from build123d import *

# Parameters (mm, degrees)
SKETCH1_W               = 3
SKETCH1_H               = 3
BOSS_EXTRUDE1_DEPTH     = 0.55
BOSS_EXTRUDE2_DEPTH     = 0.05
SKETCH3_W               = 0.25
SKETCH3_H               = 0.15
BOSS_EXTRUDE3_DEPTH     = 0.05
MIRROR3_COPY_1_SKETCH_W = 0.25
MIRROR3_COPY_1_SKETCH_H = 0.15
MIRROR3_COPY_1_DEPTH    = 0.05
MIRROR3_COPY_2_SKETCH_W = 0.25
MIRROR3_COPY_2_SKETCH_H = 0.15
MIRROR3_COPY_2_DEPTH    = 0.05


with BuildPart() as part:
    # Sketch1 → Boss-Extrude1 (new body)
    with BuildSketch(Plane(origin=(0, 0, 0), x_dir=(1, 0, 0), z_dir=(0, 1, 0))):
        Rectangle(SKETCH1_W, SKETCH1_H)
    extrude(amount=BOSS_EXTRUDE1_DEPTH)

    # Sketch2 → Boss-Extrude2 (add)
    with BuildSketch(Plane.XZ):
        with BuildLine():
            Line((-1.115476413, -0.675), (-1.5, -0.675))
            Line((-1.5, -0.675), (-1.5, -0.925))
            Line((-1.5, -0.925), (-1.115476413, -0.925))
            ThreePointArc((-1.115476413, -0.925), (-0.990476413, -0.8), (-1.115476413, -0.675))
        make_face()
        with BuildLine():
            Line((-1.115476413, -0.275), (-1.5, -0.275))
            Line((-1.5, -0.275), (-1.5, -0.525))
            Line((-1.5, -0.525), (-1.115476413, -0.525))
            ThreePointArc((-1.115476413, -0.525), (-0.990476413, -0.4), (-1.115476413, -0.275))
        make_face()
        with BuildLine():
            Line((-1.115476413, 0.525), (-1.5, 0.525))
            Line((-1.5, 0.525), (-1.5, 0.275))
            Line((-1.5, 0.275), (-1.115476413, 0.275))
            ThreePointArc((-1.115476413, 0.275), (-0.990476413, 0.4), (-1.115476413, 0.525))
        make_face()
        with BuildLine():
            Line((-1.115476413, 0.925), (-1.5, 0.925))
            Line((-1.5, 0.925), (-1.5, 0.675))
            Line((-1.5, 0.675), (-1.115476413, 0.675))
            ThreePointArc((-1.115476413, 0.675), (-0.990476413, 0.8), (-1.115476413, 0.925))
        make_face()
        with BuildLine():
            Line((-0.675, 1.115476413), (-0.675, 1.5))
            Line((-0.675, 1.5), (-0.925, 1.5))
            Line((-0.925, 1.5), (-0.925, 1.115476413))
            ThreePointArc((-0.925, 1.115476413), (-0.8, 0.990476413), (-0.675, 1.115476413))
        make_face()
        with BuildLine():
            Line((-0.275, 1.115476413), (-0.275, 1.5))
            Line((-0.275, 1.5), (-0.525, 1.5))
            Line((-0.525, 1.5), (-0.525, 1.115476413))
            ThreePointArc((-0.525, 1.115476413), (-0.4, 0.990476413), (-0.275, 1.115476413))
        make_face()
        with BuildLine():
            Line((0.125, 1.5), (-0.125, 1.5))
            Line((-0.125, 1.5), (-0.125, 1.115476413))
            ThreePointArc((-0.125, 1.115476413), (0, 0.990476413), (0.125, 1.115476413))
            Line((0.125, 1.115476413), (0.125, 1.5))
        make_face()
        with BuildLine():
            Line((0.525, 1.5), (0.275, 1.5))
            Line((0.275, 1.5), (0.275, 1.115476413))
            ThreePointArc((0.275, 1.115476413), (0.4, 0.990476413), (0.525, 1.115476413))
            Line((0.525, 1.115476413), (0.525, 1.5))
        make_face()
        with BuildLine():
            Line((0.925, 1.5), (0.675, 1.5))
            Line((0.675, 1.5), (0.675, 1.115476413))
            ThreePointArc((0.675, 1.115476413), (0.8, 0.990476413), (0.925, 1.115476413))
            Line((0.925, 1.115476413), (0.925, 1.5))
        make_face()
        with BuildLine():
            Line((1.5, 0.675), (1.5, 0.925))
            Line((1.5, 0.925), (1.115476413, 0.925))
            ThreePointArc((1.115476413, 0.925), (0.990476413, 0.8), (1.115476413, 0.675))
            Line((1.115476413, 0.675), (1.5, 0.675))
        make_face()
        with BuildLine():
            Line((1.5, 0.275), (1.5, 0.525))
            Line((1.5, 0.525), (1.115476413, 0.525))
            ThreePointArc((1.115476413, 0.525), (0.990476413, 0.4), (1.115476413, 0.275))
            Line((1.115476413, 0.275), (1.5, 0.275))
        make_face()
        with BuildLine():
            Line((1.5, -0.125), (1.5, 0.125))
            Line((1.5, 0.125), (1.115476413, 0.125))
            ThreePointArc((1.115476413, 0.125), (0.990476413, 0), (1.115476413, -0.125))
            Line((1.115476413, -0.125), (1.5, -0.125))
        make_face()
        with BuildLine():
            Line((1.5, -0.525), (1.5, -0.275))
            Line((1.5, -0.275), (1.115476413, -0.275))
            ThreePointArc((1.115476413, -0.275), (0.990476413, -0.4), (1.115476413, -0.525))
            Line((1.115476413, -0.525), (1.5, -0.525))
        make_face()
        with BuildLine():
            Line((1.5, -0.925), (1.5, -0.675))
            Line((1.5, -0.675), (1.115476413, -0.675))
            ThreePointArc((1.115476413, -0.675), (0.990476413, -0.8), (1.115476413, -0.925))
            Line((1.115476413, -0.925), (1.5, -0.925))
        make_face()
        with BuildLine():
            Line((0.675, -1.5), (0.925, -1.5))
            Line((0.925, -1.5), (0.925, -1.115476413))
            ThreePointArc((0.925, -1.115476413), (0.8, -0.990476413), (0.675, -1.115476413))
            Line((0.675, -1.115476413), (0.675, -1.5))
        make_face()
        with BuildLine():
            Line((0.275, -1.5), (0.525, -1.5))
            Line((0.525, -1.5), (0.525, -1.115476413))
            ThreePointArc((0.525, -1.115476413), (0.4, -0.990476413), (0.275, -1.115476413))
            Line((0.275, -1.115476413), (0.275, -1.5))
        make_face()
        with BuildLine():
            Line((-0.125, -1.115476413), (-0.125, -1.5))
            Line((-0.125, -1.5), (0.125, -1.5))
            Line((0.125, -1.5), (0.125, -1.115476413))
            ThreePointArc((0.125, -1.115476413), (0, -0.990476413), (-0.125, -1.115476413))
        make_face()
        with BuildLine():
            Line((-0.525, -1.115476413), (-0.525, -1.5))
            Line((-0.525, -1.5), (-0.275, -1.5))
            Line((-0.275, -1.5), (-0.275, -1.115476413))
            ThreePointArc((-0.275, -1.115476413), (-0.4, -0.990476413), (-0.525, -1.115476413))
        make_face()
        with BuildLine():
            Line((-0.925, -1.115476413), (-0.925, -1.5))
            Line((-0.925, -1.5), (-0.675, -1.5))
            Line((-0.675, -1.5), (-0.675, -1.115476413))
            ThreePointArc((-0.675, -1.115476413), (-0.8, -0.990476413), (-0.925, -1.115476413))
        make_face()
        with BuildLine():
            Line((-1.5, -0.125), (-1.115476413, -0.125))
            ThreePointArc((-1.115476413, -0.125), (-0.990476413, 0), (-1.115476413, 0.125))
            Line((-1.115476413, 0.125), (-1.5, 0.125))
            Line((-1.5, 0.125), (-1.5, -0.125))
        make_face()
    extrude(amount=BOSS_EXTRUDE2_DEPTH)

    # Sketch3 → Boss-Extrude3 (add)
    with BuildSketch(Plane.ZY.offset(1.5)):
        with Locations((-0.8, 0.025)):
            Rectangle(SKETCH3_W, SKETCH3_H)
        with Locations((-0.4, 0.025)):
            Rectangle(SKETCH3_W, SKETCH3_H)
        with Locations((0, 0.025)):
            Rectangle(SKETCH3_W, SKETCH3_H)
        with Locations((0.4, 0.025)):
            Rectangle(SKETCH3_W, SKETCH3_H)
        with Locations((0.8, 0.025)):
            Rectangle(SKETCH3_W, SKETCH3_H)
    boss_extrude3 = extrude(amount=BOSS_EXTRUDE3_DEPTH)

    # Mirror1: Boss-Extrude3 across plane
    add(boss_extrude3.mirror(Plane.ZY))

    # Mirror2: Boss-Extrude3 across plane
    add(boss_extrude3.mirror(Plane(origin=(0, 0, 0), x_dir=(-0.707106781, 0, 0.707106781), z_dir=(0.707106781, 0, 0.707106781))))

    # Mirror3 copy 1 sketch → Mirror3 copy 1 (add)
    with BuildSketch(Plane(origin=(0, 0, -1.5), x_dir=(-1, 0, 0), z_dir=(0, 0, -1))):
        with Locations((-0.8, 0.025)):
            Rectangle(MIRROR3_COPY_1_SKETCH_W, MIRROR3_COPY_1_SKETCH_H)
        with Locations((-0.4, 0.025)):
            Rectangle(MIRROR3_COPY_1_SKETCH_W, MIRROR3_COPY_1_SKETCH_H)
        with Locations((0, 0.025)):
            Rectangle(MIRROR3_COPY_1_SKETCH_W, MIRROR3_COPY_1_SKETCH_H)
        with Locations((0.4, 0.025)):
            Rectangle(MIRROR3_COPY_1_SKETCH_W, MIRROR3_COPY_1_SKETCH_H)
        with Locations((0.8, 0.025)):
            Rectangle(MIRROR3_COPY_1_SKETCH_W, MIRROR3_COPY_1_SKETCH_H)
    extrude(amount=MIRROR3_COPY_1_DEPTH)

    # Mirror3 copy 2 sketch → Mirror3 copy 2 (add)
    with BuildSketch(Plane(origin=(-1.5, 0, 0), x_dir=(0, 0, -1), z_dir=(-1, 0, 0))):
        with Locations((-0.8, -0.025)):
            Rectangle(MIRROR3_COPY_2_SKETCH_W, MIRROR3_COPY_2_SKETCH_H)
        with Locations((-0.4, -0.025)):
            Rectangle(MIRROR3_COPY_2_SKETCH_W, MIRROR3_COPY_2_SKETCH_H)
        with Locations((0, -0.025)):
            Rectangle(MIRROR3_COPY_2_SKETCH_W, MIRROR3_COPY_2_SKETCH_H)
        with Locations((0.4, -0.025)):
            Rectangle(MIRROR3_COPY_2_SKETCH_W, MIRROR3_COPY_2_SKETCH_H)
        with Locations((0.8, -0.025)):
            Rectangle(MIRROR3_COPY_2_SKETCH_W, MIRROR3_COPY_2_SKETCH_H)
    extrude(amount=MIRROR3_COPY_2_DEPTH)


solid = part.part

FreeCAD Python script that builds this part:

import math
import FreeCAD as App
import Part
import Sketcher

V = App.Vector
Q = App.Units.Quantity


def add_polygon(sketch, points):
    """Adds a closed chain of lines whose ends are joined by coincident constraints."""
    first, n = sketch.GeometryCount, len(points)
    for a, b in zip(points, points[1:] + points[:1]):
        sketch.addGeometry(Part.LineSegment(App.Vector(*a, 0), App.Vector(*b, 0)), False)
    for i in range(n):
        sketch.addConstraint(Sketcher.Constraint("Coincident", first + i, 2, first + (i + 1) % n, 1))

doc = App.newDocument("Part")
body = doc.addObject("PartDesign::Body", "Body")

# Sketch on XZ plane
sketch1 = body.newObject("Sketcher::SketchObject", "Sketch")
sketch1.AttachmentSupport = (doc.getObject("XZ_Plane"), [""])
sketch1.MapMode = "FlatFace"
add_polygon(sketch1, [(-1.5, -1.5), (-1.5, 1.5), (1.5, 1.5), (1.5, -1.5)])  # lines 0-3
sketch1.addConstraint([
    Sketcher.Constraint("Vertical", 0),
    Sketcher.Constraint("Horizontal", 1),
    Sketcher.Constraint("Vertical", 2),
    Sketcher.Constraint("Horizontal", 3),
    Sketcher.Constraint("Symmetric", 0, 2, 2, 2, -1, 1),
    Sketcher.Constraint("Equal", 3, 0),
    Sketcher.Constraint("DistanceX", 1, 1, 1, 2, Q("3 mm")),
])
pad1 = body.newObject("PartDesign::Pad", "Pad")
pad1.Profile = sketch1
pad1.Length = 0.55
pad1.Reversed = True

# Sketch on XZ plane
sketch2 = body.newObject("Sketcher::SketchObject", "Sketch001")
sketch2.AttachmentSupport = (doc.getObject("XZ_Plane"), [""])
sketch2.MapMode = "FlatFace"
sketch2.addGeometry([
    Part.LineSegment(V(-1.12, -0.68, 0), V(-1.5, -0.68, 0)),  # 0
    Part.LineSegment(V(-1.5, -0.68, 0), V(-1.5, -0.93, 0)),  # 1
    Part.LineSegment(V(-1.5, -0.93, 0), V(-1.12, -0.93, 0)),  # 2
    Part.ArcOfCircle(Part.Circle(V(-1.12, -0.8, 0), V(0, 0, 1), 0.12), math.radians(-90), math.radians(90)),  # 3
    Part.LineSegment(V(-1.12, -0.28, 0), V(-1.5, -0.28, 0)),  # 4
    Part.LineSegment(V(-1.5, -0.28, 0), V(-1.5, -0.53, 0)),  # 5
    Part.LineSegment(V(-1.5, -0.53, 0), V(-1.12, -0.53, 0)),  # 6
    Part.ArcOfCircle(Part.Circle(V(-1.12, -0.4, 0), V(0, 0, 1), 0.12), math.radians(-90), math.radians(90)),  # 7
    Part.LineSegment(V(-1.12, 0.53, 0), V(-1.5, 0.53, 0)),  # 8
    Part.LineSegment(V(-1.5, 0.53, 0), V(-1.5, 0.28, 0)),  # 9
    Part.LineSegment(V(-1.5, 0.28, 0), V(-1.12, 0.28, 0)),  # 10
    Part.ArcOfCircle(Part.Circle(V(-1.12, 0.4, 0), V(0, 0, 1), 0.12), math.radians(-90), math.radians(90)),  # 11
    Part.LineSegment(V(-1.12, 0.93, 0), V(-1.5, 0.93, 0)),  # 12
    Part.LineSegment(V(-1.5, 0.93, 0), V(-1.5, 0.68, 0)),  # 13
    Part.LineSegment(V(-1.5, 0.68, 0), V(-1.12, 0.68, 0)),  # 14
    Part.ArcOfCircle(Part.Circle(V(-1.12, 0.8, 0), V(0, 0, 1), 0.12), math.radians(-90), math.radians(90)),  # 15
    Part.LineSegment(V(-0.68, 1.12, 0), V(-0.68, 1.5, 0)),  # 16
    Part.LineSegment(V(-0.68, 1.5, 0), V(-0.93, 1.5, 0)),  # 17
    Part.LineSegment(V(-0.93, 1.5, 0), V(-0.93, 1.12, 0)),  # 18
    Part.ArcOfCircle(Part.Circle(V(-0.8, 1.12, 0), V(0, 0, 1), 0.12), math.radians(180), math.radians(360)),  # 19
    Part.LineSegment(V(-0.28, 1.12, 0), V(-0.28, 1.5, 0)),  # 20
    Part.LineSegment(V(-0.28, 1.5, 0), V(-0.53, 1.5, 0)),  # 21
    Part.LineSegment(V(-0.53, 1.5, 0), V(-0.53, 1.12, 0)),  # 22
    Part.ArcOfCircle(Part.Circle(V(-0.4, 1.12, 0), V(0, 0, 1), 0.12), math.radians(180), math.radians(360)),  # 23
    Part.LineSegment(V(0.12, 1.5, 0), V(-0.12, 1.5, 0)),  # 24
    Part.LineSegment(V(-0.12, 1.5, 0), V(-0.12, 1.12, 0)),  # 25
    Part.ArcOfCircle(Part.Circle(V(0, 1.12, 0), V(0, 0, 1), 0.12), math.radians(180), math.radians(360)),  # 26
    Part.LineSegment(V(0.12, 1.12, 0), V(0.12, 1.5, 0)),  # 27
    Part.LineSegment(V(0.53, 1.5, 0), V(0.28, 1.5, 0)),  # 28
    Part.LineSegment(V(0.28, 1.5, 0), V(0.28, 1.12, 0)),  # 29
    Part.ArcOfCircle(Part.Circle(V(0.4, 1.12, 0), V(0, 0, 1), 0.12), math.radians(180), math.radians(360)),  # 30
    Part.LineSegment(V(0.53, 1.12, 0), V(0.53, 1.5, 0)),  # 31
    Part.LineSegment(V(0.93, 1.5, 0), V(0.68, 1.5, 0)),  # 32
    Part.LineSegment(V(0.68, 1.5, 0), V(0.68, 1.12, 0)),  # 33
    Part.ArcOfCircle(Part.Circle(V(0.8, 1.12, 0), V(0, 0, 1), 0.12), math.radians(180), math.radians(360)),  # 34
    Part.LineSegment(V(0.93, 1.12, 0), V(0.93, 1.5, 0)),  # 35
    Part.LineSegment(V(1.5, 0.68, 0), V(1.5, 0.93, 0)),  # 36
    Part.LineSegment(V(1.5, 0.93, 0), V(1.12, 0.93, 0)),  # 37
    Part.ArcOfCircle(Part.Circle(V(1.12, 0.8, 0), V(0, 0, 1), 0.12), math.radians(90), math.radians(270)),  # 38
    Part.LineSegment(V(1.12, 0.68, 0), V(1.5, 0.68, 0)),  # 39
    Part.LineSegment(V(1.5, 0.28, 0), V(1.5, 0.53, 0)),  # 40
    Part.LineSegment(V(1.5, 0.53, 0), V(1.12, 0.53, 0)),  # 41
    Part.ArcOfCircle(Part.Circle(V(1.12, 0.4, 0), V(0, 0, 1), 0.12), math.radians(90), math.radians(270)),  # 42
    Part.LineSegment(V(1.12, 0.28, 0), V(1.5, 0.28, 0)),  # 43
    Part.LineSegment(V(1.5, -0.12, 0), V(1.5, 0.12, 0)),  # 44
    Part.LineSegment(V(1.5, 0.12, 0), V(1.12, 0.12, 0)),  # 45
    Part.ArcOfCircle(Part.Circle(V(1.12, 0, 0), V(0, 0, 1), 0.12), math.radians(90), math.radians(270)),  # 46
    Part.LineSegment(V(1.12, -0.12, 0), V(1.5, -0.12, 0)),  # 47
    Part.LineSegment(V(1.5, -0.53, 0), V(1.5, -0.28, 0)),  # 48
    Part.LineSegment(V(1.5, -0.28, 0), V(1.12, -0.28, 0)),  # 49
    Part.ArcOfCircle(Part.Circle(V(1.12, -0.4, 0), V(0, 0, 1), 0.12), math.radians(90), math.radians(270)),  # 50
    Part.LineSegment(V(1.12, -0.53, 0), V(1.5, -0.53, 0)),  # 51
    Part.LineSegment(V(1.5, -0.93, 0), V(1.5, -0.68, 0)),  # 52
    Part.LineSegment(V(1.5, -0.68, 0), V(1.12, -0.68, 0)),  # 53
    Part.ArcOfCircle(Part.Circle(V(1.12, -0.8, 0), V(0, 0, 1), 0.12), math.radians(90), math.radians(270)),  # 54
    Part.LineSegment(V(1.12, -0.93, 0), V(1.5, -0.93, 0)),  # 55
    Part.LineSegment(V(0.68, -1.5, 0), V(0.93, -1.5, 0)),  # 56
    Part.LineSegment(V(0.93, -1.5, 0), V(0.93, -1.12, 0)),  # 57
    Part.ArcOfCircle(Part.Circle(V(0.8, -1.12, 0), V(0, 0, 1), 0.12), math.radians(0), math.radians(180)),  # 58
    Part.LineSegment(V(0.68, -1.12, 0), V(0.68, -1.5, 0)),  # 59
    Part.LineSegment(V(0.28, -1.5, 0), V(0.53, -1.5, 0)),  # 60
    Part.LineSegment(V(0.53, -1.5, 0), V(0.53, -1.12, 0)),  # 61
    Part.ArcOfCircle(Part.Circle(V(0.4, -1.12, 0), V(0, 0, 1), 0.12), math.radians(0), math.radians(180)),  # 62
    Part.LineSegment(V(0.28, -1.12, 0), V(0.28, -1.5, 0)),  # 63
    Part.LineSegment(V(-0.12, -1.12, 0), V(-0.12, -1.5, 0)),  # 64
    Part.LineSegment(V(-0.12, -1.5, 0), V(0.12, -1.5, 0)),  # 65
    Part.LineSegment(V(0.12, -1.5, 0), V(0.12, -1.12, 0)),  # 66
    Part.ArcOfCircle(Part.Circle(V(0, -1.12, 0), V(0, 0, 1), 0.12), math.radians(0), math.radians(180)),  # 67
    Part.LineSegment(V(-0.53, -1.12, 0), V(-0.53, -1.5, 0)),  # 68
    Part.LineSegment(V(-0.53, -1.5, 0), V(-0.28, -1.5, 0)),  # 69
    Part.LineSegment(V(-0.28, -1.5, 0), V(-0.28, -1.12, 0)),  # 70
    Part.ArcOfCircle(Part.Circle(V(-0.4, -1.12, 0), V(0, 0, 1), 0.12), math.radians(0), math.radians(180)),  # 71
    Part.LineSegment(V(-0.93, -1.12, 0), V(-0.93, -1.5, 0)),  # 72
    Part.LineSegment(V(-0.93, -1.5, 0), V(-0.68, -1.5, 0)),  # 73
    Part.LineSegment(V(-0.68, -1.5, 0), V(-0.68, -1.12, 0)),  # 74
    Part.ArcOfCircle(Part.Circle(V(-0.8, -1.12, 0), V(0, 0, 1), 0.12), math.radians(0), math.radians(180)),  # 75
    Part.LineSegment(V(-1.5, -0.12, 0), V(-1.12, -0.12, 0)),  # 76
    Part.ArcOfCircle(Part.Circle(V(-1.12, 0, 0), V(0, 0, 1), 0.12), math.radians(-90), math.radians(90)),  # 77
    Part.LineSegment(V(-1.12, 0.12, 0), V(-1.5, 0.12, 0)),  # 78
    Part.LineSegment(V(-1.5, 0.12, 0), V(-1.5, -0.12, 0)),  # 79
], False)
sketch2.addConstraint([
    Sketcher.Constraint("Coincident", 0, 2, 1, 1),
    Sketcher.Constraint("Coincident", 1, 2, 2, 1),
    Sketcher.Constraint("Tangent", 2, 2, 3, 1),
    Sketcher.Constraint("Tangent", 3, 2, 0, 1),
    Sketcher.Constraint("Coincident", 4, 2, 5, 1),
    Sketcher.Constraint("Coincident", 5, 2, 6, 1),
    Sketcher.Constraint("Tangent", 6, 2, 7, 1),
    Sketcher.Constraint("Tangent", 7, 2, 4, 1),
    Sketcher.Constraint("Coincident", 8, 2, 9, 1),
    Sketcher.Constraint("Coincident", 9, 2, 10, 1),
    Sketcher.Constraint("Tangent", 10, 2, 11, 1),
    Sketcher.Constraint("Tangent", 11, 2, 8, 1),
    Sketcher.Constraint("Coincident", 12, 2, 13, 1),
    Sketcher.Constraint("Coincident", 13, 2, 14, 1),
    Sketcher.Constraint("Tangent", 14, 2, 15, 1),
    Sketcher.Constraint("Tangent", 15, 2, 12, 1),
    Sketcher.Constraint("Coincident", 16, 2, 17, 1),
    Sketcher.Constraint("Coincident", 17, 2, 18, 1),
    Sketcher.Constraint("Tangent", 18, 2, 19, 1),
    Sketcher.Constraint("Tangent", 19, 2, 16, 1),
    Sketcher.Constraint("Coincident", 20, 2, 21, 1),
    Sketcher.Constraint("Coincident", 21, 2, 22, 1),
    Sketcher.Constraint("Tangent", 22, 2, 23, 1),
    Sketcher.Constraint("Tangent", 23, 2, 20, 1),
    Sketcher.Constraint("Coincident", 24, 2, 25, 1),
    Sketcher.Constraint("Tangent", 25, 2, 26, 1),
    Sketcher.Constraint("Tangent", 26, 2, 27, 1),
    Sketcher.Constraint("Coincident", 27, 2, 24, 1),
    Sketcher.Constraint("Coincident", 28, 2, 29, 1),
    Sketcher.Constraint("Tangent", 29, 2, 30, 1),
    Sketcher.Constraint("Tangent", 30, 2, 31, 1),
    Sketcher.Constraint("Coincident", 31, 2, 28, 1),
    Sketcher.Constraint("Coincident", 32, 2, 33, 1),
    Sketcher.Constraint("Tangent", 33, 2, 34, 1),
    Sketcher.Constraint("Tangent", 34, 2, 35, 1),
    Sketcher.Constraint("Coincident", 35, 2, 32, 1),
    Sketcher.Constraint("Coincident", 36, 2, 37, 1),
    Sketcher.Constraint("Tangent", 37, 2, 38, 1),
    Sketcher.Constraint("Tangent", 38, 2, 39, 1),
    Sketcher.Constraint("Coincident", 39, 2, 36, 1),
    Sketcher.Constraint("Coincident", 40, 2, 41, 1),
    Sketcher.Constraint("Tangent", 41, 2, 42, 1),
    Sketcher.Constraint("Tangent", 42, 2, 43, 1),
    Sketcher.Constraint("Coincident", 43, 2, 40, 1),
    Sketcher.Constraint("Coincident", 44, 2, 45, 1),
    Sketcher.Constraint("Tangent", 45, 2, 46, 1),
    Sketcher.Constraint("Tangent", 46, 2, 47, 1),
    Sketcher.Constraint("Coincident", 47, 2, 44, 1),
    Sketcher.Constraint("Coincident", 48, 2, 49, 1),
    Sketcher.Constraint("Tangent", 49, 2, 50, 1),
    Sketcher.Constraint("Tangent", 50, 2, 51, 1),
    Sketcher.Constraint("Coincident", 51, 2, 48, 1),
    Sketcher.Constraint("Coincident", 52, 2, 53, 1),
    Sketcher.Constraint("Tangent", 53, 2, 54, 1),
    Sketcher.Constraint("Tangent", 54, 2, 55, 1),
    Sketcher.Constraint("Coincident", 55, 2, 52, 1),
    Sketcher.Constraint("Coincident", 56, 2, 57, 1),
    Sketcher.Constraint("Tangent", 57, 2, 58, 1),
    Sketcher.Constraint("Tangent", 58, 2, 59, 1),
    Sketcher.Constraint("Coincident", 59, 2, 56, 1),
    Sketcher.Constraint("Coincident", 60, 2, 61, 1),
    Sketcher.Constraint("Tangent", 61, 2, 62, 1),
    Sketcher.Constraint("Tangent", 62, 2, 63, 1),
    Sketcher.Constraint("Coincident", 63, 2, 60, 1),
    Sketcher.Constraint("Coincident", 64, 2, 65, 1),
    Sketcher.Constraint("Coincident", 65, 2, 66, 1),
    Sketcher.Constraint("Tangent", 66, 2, 67, 1),
    Sketcher.Constraint("Tangent", 67, 2, 64, 1),
    Sketcher.Constraint("Coincident", 68, 2, 69, 1),
    Sketcher.Constraint("Coincident", 69, 2, 70, 1),
    Sketcher.Constraint("Tangent", 70, 2, 71, 1),
    Sketcher.Constraint("Tangent", 71, 2, 68, 1),
    Sketcher.Constraint("Coincident", 72, 2, 73, 1),
    Sketcher.Constraint("Coincident", 73, 2, 74, 1),
    Sketcher.Constraint("Tangent", 74, 2, 75, 1),
    Sketcher.Constraint("Tangent", 75, 2, 72, 1),
    Sketcher.Constraint("Tangent", 76, 2, 77, 1),
    Sketcher.Constraint("Tangent", 77, 2, 78, 1),
    Sketcher.Constraint("Coincident", 78, 2, 79, 1),
    Sketcher.Constraint("Coincident", 79, 2, 76, 1),
    Sketcher.Constraint("Horizontal", 0),
    Sketcher.Constraint("Vertical", 1),
    Sketcher.Constraint("Horizontal", 2),
    Sketcher.Constraint("Horizontal", 4),
    Sketcher.Constraint("Vertical", 5),
    Sketcher.Constraint("Horizontal", 6),
    Sketcher.Constraint("Horizontal", 8),
    Sketcher.Constraint("Vertical", 9),
    Sketcher.Constraint("Horizontal", 10),
    Sketcher.Constraint("Horizontal", 12),
    Sketcher.Constraint("Vertical", 13),
    Sketcher.Constraint("Horizontal", 14),
    Sketcher.Constraint("Vertical", 16),
    Sketcher.Constraint("Horizontal", 17),
    Sketcher.Constraint("Vertical", 18),
    Sketcher.Constraint("Vertical", 20),
    Sketcher.Constraint("Horizontal", 21),
    Sketcher.Constraint("Vertical", 22),
    Sketcher.Constraint("Horizontal", 24),
    Sketcher.Constraint("Vertical", 25),
    Sketcher.Constraint("Vertical", 27),
    Sketcher.Constraint("Horizontal", 28),
    Sketcher.Constraint("Vertical", 29),
    Sketcher.Constraint("Vertical", 31),
    Sketcher.Constraint("Horizontal", 32),
    Sketcher.Constraint("Vertical", 33),
    Sketcher.Constraint("Vertical", 35),
    Sketcher.Constraint("Vertical", 36),
    Sketcher.Constraint("Horizontal", 37),
    Sketcher.Constraint("Horizontal", 39),
    Sketcher.Constraint("Vertical", 40),
    Sketcher.Constraint("Horizontal", 41),
    Sketcher.Constraint("Horizontal", 43),
    Sketcher.Constraint("Vertical", 44),
    Sketcher.Constraint("Horizontal", 45),
    Sketcher.Constraint("Horizontal", 47),
    Sketcher.Constraint("Vertical", 48),
    Sketcher.Constraint("Horizontal", 49),
    Sketcher.Constraint("Horizontal", 51),
    Sketcher.Constraint("Vertical", 52),
    Sketcher.Constraint("Horizontal", 53),
    Sketcher.Constraint("Horizontal", 55),
    Sketcher.Constraint("Horizontal", 56),
    Sketcher.Constraint("Vertical", 57),
    Sketcher.Constraint("Vertical", 59),
    Sketcher.Constraint("Horizontal", 60),
    Sketcher.Constraint("Vertical", 61),
    Sketcher.Constraint("Vertical", 63),
    Sketcher.Constraint("Vertical", 64),
    Sketcher.Constraint("Horizontal", 65),
    Sketcher.Constraint("Vertical", 66),
    Sketcher.Constraint("Vertical", 68),
    Sketcher.Constraint("Horizontal", 69),
    Sketcher.Constraint("Vertical", 70),
    Sketcher.Constraint("Vertical", 72),
    Sketcher.Constraint("Horizontal", 73),
    Sketcher.Constraint("Vertical", 74),
    Sketcher.Constraint("Horizontal", 76),
    Sketcher.Constraint("Horizontal", 78),
    Sketcher.Constraint("Vertical", 79),
    Sketcher.Constraint("Equal", 3, 7),
    Sketcher.Constraint("Equal", 7, 11),
    Sketcher.Constraint("Equal", 11, 15),
    Sketcher.Constraint("Equal", 15, 19),
    Sketcher.Constraint("Equal", 19, 23),
    Sketcher.Constraint("Equal", 23, 26),
    Sketcher.Constraint("Equal", 26, 30),
    Sketcher.Constraint("Equal", 30, 34),
    Sketcher.Constraint("Equal", 34, 38),
    Sketcher.Constraint("Equal", 38, 42),
    Sketcher.Constraint("Equal", 42, 46),
    Sketcher.Constraint("Equal", 46, 50),
    Sketcher.Constraint("Equal", 50, 54),
    Sketcher.Constraint("Equal", 54, 58),
    Sketcher.Constraint("Equal", 58, 62),
    Sketcher.Constraint("Equal", 62, 67),
    Sketcher.Constraint("Equal", 67, 71),
    Sketcher.Constraint("Equal", 71, 75),
    Sketcher.Constraint("Equal", 75, 77),
    Sketcher.Constraint("Symmetric", 3, 3, 38, 3, -1, 1),
    Sketcher.Constraint("Symmetric", 7, 3, 42, 3, -1, 1),
    Sketcher.Constraint("Symmetric", 11, 3, 50, 3, -1, 1),
    Sketcher.Constraint("Symmetric", 15, 3, 54, 3, -1, 1),
    Sketcher.Constraint("Symmetric", 19, 3, 58, 3, -1, 1),
    Sketcher.Constraint("Symmetric", 23, 3, 62, 3, -1, 1),
    Sketcher.Constraint("Symmetric", 26, 3, 67, 3, -1, 1),
    Sketcher.Constraint("Symmetric", 30, 3, 71, 3, -1, 1),
    Sketcher.Constraint("Symmetric", 34, 3, 75, 3, -1, 1),
    Sketcher.Constraint("Symmetric", 46, 3, 77, 3, -1, 1),
    Sketcher.Constraint("Symmetric", 23, 3, 30, 3, -2),
    Sketcher.Constraint("Symmetric", 19, 3, 34, 3, -2),
    Sketcher.Constraint("Symmetric", 15, 3, 38, 3, -2),
    Sketcher.Constraint("Symmetric", 11, 3, 42, 3, -2),
    Sketcher.Constraint("Symmetric", 44, 2, 78, 2, -2),
    Sketcher.Constraint("Symmetric", 24, 2, 64, 2, -1),
    Sketcher.Constraint("Horizontal", 19, 3, 23, 3),
    Sketcher.Constraint("Horizontal", 23, 3, 26, 3),
    Sketcher.Constraint("Horizontal", 17, 2, 20, 2),
    Sketcher.Constraint("Horizontal", 21, 2, 24, 2),
    Sketcher.Constraint("Horizontal", 27, 2, 28, 2),
    Sketcher.Constraint("Horizontal", 31, 2, 32, 2),
    Sketcher.Constraint("Horizontal", 59, 2, 60, 2),
    Sketcher.Constraint("Horizontal", 63, 2, 64, 2),
    Sketcher.Constraint("Horizontal", 65, 2, 68, 2),
    Sketcher.Constraint("Horizontal", 69, 2, 72, 2),
    Sketcher.Constraint("Vertical", 3, 3, 7, 3),
    Sketcher.Constraint("Vertical", 42, 3, 46, 3),
    Sketcher.Constraint("Vertical", 1, 2, 4, 2),
    Sketcher.Constraint("Vertical", 5, 2, 8, 2),
    Sketcher.Constraint("Vertical", 9, 2, 12, 2),
    Sketcher.Constraint("Vertical", 39, 2, 40, 2),
    Sketcher.Constraint("Vertical", 43, 2, 44, 2),
    Sketcher.Constraint("Vertical", 47, 2, 48, 2),
    Sketcher.Constraint("Vertical", 51, 2, 52, 2),
    Sketcher.Constraint("Vertical", 13, 2, 78, 2),
    Sketcher.Constraint("Equal", 78, 16),
    Sketcher.Constraint("Radius", 3, Q("0.125 mm")),
    Sketcher.Constraint("DistanceY", 3, 3, -1, 1, Q("0.8 mm")),
    Sketcher.Constraint("DistanceY", 7, 3, -1, 1, Q("0.4 mm")),
    Sketcher.Constraint("DistanceX", 19, 3, -1, 1, Q("0.8 mm")),
    Sketcher.Constraint("DistanceX", 23, 3, -1, 1, Q("0.4 mm")),
    Sketcher.Constraint("DistanceX", 0, 2, -1, 1, Q("1.5 mm")),
    Sketcher.Constraint("DistanceY", -1, 1, 16, 2, Q("1.5 mm")),
    Sketcher.Constraint("DistanceX", 0, 2, 0, 1, Q("0.384524 mm")),
])
pad2 = body.newObject("PartDesign::Pad", "Pad001")
pad2.Profile = sketch2
pad2.Length = 0.05

# Sketch on YZ plane
sketch3 = body.newObject("Sketcher::SketchObject", "Sketch002")
sketch3.AttachmentSupport = (doc.getObject("YZ_Plane"), [""])
sketch3.MapMode = "FlatFace"
sketch3.AttachmentOffset = App.Placement(V(0, 0, -1.5), App.Rotation())
add_polygon(sketch3, [(0.1, -0.93), (-0.05, -0.93), (-0.05, -0.68), (0.1, -0.68)])  # lines 0-3
add_polygon(sketch3, [(0.1, -0.53), (-0.05, -0.53), (-0.05, -0.28), (0.1, -0.28)])  # lines 4-7
add_polygon(sketch3, [(0.1, -0.12), (-0.05, -0.12), (-0.05, 0.12), (0.1, 0.12)])  # lines 8-11
add_polygon(sketch3, [(0.1, 0.28), (-0.05, 0.28), (-0.05, 0.53), (0.1, 0.53)])  # lines 12-15
add_polygon(sketch3, [(0.1, 0.68), (-0.05, 0.68), (-0.05, 0.93), (0.1, 0.93)])  # lines 16-19
sketch3.addConstraint([
    Sketcher.Constraint("Horizontal", 0),
    Sketcher.Constraint("Vertical", 1),
    Sketcher.Constraint("Horizontal", 2),
    Sketcher.Constraint("Vertical", 3),
    Sketcher.Constraint("Horizontal", 4),
    Sketcher.Constraint("Vertical", 5),
    Sketcher.Constraint("Horizontal", 6),
    Sketcher.Constraint("Vertical", 7),
    Sketcher.Constraint("Horizontal", 8),
    Sketcher.Constraint("Vertical", 9),
    Sketcher.Constraint("Horizontal", 10),
    Sketcher.Constraint("Vertical", 11),
    Sketcher.Constraint("Horizontal", 12),
    Sketcher.Constraint("Vertical", 13),
    Sketcher.Constraint("Horizontal", 14),
    Sketcher.Constraint("Vertical", 15),
    Sketcher.Constraint("Horizontal", 16),
    Sketcher.Constraint("Vertical", 17),
    Sketcher.Constraint("Horizontal", 18),
    Sketcher.Constraint("Vertical", 19),
    Sketcher.Constraint("Symmetric", 5, 2, 12, 2, -1),
    Sketcher.Constraint("Symmetric", 7, 2, 14, 2, -1),
    Sketcher.Constraint("Symmetric", 1, 2, 16, 2, -1),
    Sketcher.Constraint("Symmetric", 3, 2, 18, 2, -1),
    Sketcher.Constraint("Vertical", 1, 2, 4, 2),
    Sketcher.Constraint("Vertical", 3, 2, 6, 2),
    Sketcher.Constraint("Vertical", 5, 2, 8, 2),
    Sketcher.Constraint("Vertical", 7, 2, 10, 2),
    Sketcher.Constraint("Equal", 3, 5),
    Sketcher.Constraint("Equal", 7, 9),
    Sketcher.Constraint("DistanceX", 0, 2, 0, 1, Q("0.15 mm")),
    Sketcher.Constraint("DistanceY", 1, 1, 1, 2, Q("0.25 mm")),
    Sketcher.Constraint("DistanceX", -1, 1, 2, 2, Q("0.1 mm")),
    Sketcher.Constraint("DistanceY", 0, 2, 4, 2, Q("0.4 mm")),
    Sketcher.Constraint("DistanceY", 4, 2, 8, 2, Q("0.4 mm")),
    Sketcher.Constraint("DistanceY", 8, 2, 12, 2, Q("0.4 mm")),
])
pad3 = body.newObject("PartDesign::Pad", "Pad002")
pad3.Profile = sketch3
pad3.Length = 0.05
pad3.Reversed = True
doc.recompute()

mirrored = body.newObject("PartDesign::Mirrored", "Mirrored")
mirrored.Originals = [pad3]
mirrored.MirrorPlane = (doc.getObject("YZ_Plane"), [""])
body.Tip = mirrored
doc.recompute()

datumplane = body.newObject("PartDesign::Plane", "DatumPlane")
datumplane.Placement = App.Placement(V(0, 0, 0), App.Rotation(V(-0.707106781, 0, 0.707106781), V(0, -1, 0), V(0.707106781, 0, 0.707106781), "ZXY"))
mirrored2 = body.newObject("PartDesign::Mirrored", "Mirrored001")
mirrored2.Originals = [pad3]
mirrored2.MirrorPlane = (datumplane, [""])
body.Tip = mirrored2

# Sketch on XY plane
sketch4 = body.newObject("Sketcher::SketchObject", "Sketch003")
sketch4.AttachmentSupport = (doc.getObject("XY_Plane"), [""])
sketch4.MapMode = "FlatFace"
sketch4.AttachmentOffset = App.Placement(V(0, 0, -1.5), App.Rotation())
add_polygon(sketch4, [(0.93, 0.1), (0.93, -0.05), (0.68, -0.05), (0.68, 0.1)])  # lines 0-3
add_polygon(sketch4, [(0.53, 0.1), (0.53, -0.05), (0.28, -0.05), (0.28, 0.1)])  # lines 4-7
add_polygon(sketch4, [(0.12, 0.1), (0.12, -0.05), (-0.12, -0.05), (-0.12, 0.1)])  # lines 8-11
add_polygon(sketch4, [(-0.28, 0.1), (-0.28, -0.05), (-0.53, -0.05), (-0.53, 0.1)])  # lines 12-15
add_polygon(sketch4, [(-0.68, 0.1), (-0.68, -0.05), (-0.93, -0.05), (-0.93, 0.1)])  # lines 16-19
sketch4.addConstraint([
    Sketcher.Constraint("Vertical", 0),
    Sketcher.Constraint("Horizontal", 1),
    Sketcher.Constraint("Vertical", 2),
    Sketcher.Constraint("Horizontal", 3),
    Sketcher.Constraint("Vertical", 4),
    Sketcher.Constraint("Horizontal", 5),
    Sketcher.Constraint("Vertical", 6),
    Sketcher.Constraint("Horizontal", 7),
    Sketcher.Constraint("Vertical", 8),
    Sketcher.Constraint("Horizontal", 9),
    Sketcher.Constraint("Vertical", 10),
    Sketcher.Constraint("Horizontal", 11),
    Sketcher.Constraint("Vertical", 12),
    Sketcher.Constraint("Horizontal", 13),
    Sketcher.Constraint("Vertical", 14),
    Sketcher.Constraint("Horizontal", 15),
    Sketcher.Constraint("Vertical", 16),
    Sketcher.Constraint("Horizontal", 17),
    Sketcher.Constraint("Vertical", 18),
    Sketcher.Constraint("Horizontal", 19),
    Sketcher.Constraint("Symmetric", 5, 2, 12, 2, -2),
    Sketcher.Constraint("Symmetric", 7, 2, 14, 2, -2),
    Sketcher.Constraint("Symmetric", 1, 2, 16, 2, -2),
    Sketcher.Constraint("Symmetric", 3, 2, 18, 2, -2),
    Sketcher.Constraint("Horizontal", 1, 2, 4, 2),
    Sketcher.Constraint("Horizontal", 3, 2, 6, 2),
    Sketcher.Constraint("Horizontal", 5, 2, 8, 2),
    Sketcher.Constraint("Horizontal", 7, 2, 10, 2),
    Sketcher.Constraint("Equal", 3, 5),
    Sketcher.Constraint("Equal", 7, 9),
    Sketcher.Constraint("DistanceX", 1, 2, 1, 1, Q("0.25 mm")),
    Sketcher.Constraint("DistanceY", 0, 2, 0, 1, Q("0.15 mm")),
    Sketcher.Constraint("DistanceY", -1, 1, 2, 2, Q("0.1 mm")),
    Sketcher.Constraint("DistanceX", 4, 2, 0, 2, Q("0.4 mm")),
    Sketcher.Constraint("DistanceX", 8, 2, 4, 2, Q("0.4 mm")),
    Sketcher.Constraint("DistanceX", 12, 2, 8, 2, Q("0.4 mm")),
])
pad4 = body.newObject("PartDesign::Pad", "Pad003")
pad4.Profile = sketch4
pad4.Length = 0.05
pad4.Reversed = True

# Sketch on YZ plane
sketch5 = body.newObject("Sketcher::SketchObject", "Sketch004")
sketch5.AttachmentSupport = (doc.getObject("YZ_Plane"), [""])
sketch5.MapMode = "FlatFace"
sketch5.AttachmentOffset = App.Placement(V(0, 0, -1.5), App.Rotation())
add_polygon(sketch5, [(-0.05, 0.93), (0.1, 0.93), (0.1, 0.68), (-0.05, 0.68)])  # lines 0-3
add_polygon(sketch5, [(-0.05, 0.53), (0.1, 0.53), (0.1, 0.28), (-0.05, 0.28)])  # lines 4-7
add_polygon(sketch5, [(-0.05, 0.12), (0.1, 0.12), (0.1, -0.12), (-0.05, -0.12)])  # lines 8-11
add_polygon(sketch5, [(-0.05, -0.28), (0.1, -0.28), (0.1, -0.53), (-0.05, -0.53)])  # lines 12-15
add_polygon(sketch5, [(-0.05, -0.68), (0.1, -0.68), (0.1, -0.93), (-0.05, -0.93)])  # lines 16-19
sketch5.addConstraint([
    Sketcher.Constraint("Horizontal", 0),
    Sketcher.Constraint("Vertical", 1),
    Sketcher.Constraint("Horizontal", 2),
    Sketcher.Constraint("Vertical", 3),
    Sketcher.Constraint("Horizontal", 4),
    Sketcher.Constraint("Vertical", 5),
    Sketcher.Constraint("Horizontal", 6),
    Sketcher.Constraint("Vertical", 7),
    Sketcher.Constraint("Horizontal", 8),
    Sketcher.Constraint("Vertical", 9),
    Sketcher.Constraint("Horizontal", 10),
    Sketcher.Constraint("Vertical", 11),
    Sketcher.Constraint("Horizontal", 12),
    Sketcher.Constraint("Vertical", 13),
    Sketcher.Constraint("Horizontal", 14),
    Sketcher.Constraint("Vertical", 15),
    Sketcher.Constraint("Horizontal", 16),
    Sketcher.Constraint("Vertical", 17),
    Sketcher.Constraint("Horizontal", 18),
    Sketcher.Constraint("Vertical", 19),
    Sketcher.Constraint("Symmetric", 5, 2, 12, 2, -1),
    Sketcher.Constraint("Symmetric", 7, 2, 14, 2, -1),
    Sketcher.Constraint("Symmetric", 1, 2, 16, 2, -1),
    Sketcher.Constraint("Symmetric", 3, 2, 18, 2, -1),
    Sketcher.Constraint("Vertical", 1, 2, 4, 2),
    Sketcher.Constraint("Vertical", 3, 2, 6, 2),
    Sketcher.Constraint("Vertical", 5, 2, 8, 2),
    Sketcher.Constraint("Vertical", 7, 2, 10, 2),
    Sketcher.Constraint("Equal", 3, 5),
    Sketcher.Constraint("Equal", 7, 9),
    Sketcher.Constraint("DistanceX", 0, 1, 0, 2, Q("0.15 mm")),
    Sketcher.Constraint("DistanceY", 1, 2, 1, 1, Q("0.25 mm")),
    Sketcher.Constraint("DistanceX", -1, 1, 0, 2, Q("0.1 mm")),
    Sketcher.Constraint("DistanceY", 4, 2, 0, 2, Q("0.4 mm")),
    Sketcher.Constraint("DistanceY", 8, 2, 4, 2, Q("0.4 mm")),
    Sketcher.Constraint("DistanceY", 12, 2, 8, 2, Q("0.4 mm")),
])
pad5 = body.newObject("PartDesign::Pad", "Pad004")
pad5.Profile = sketch5
pad5.Length = 0.05
pad5.Reversed = True

doc.recompute()
